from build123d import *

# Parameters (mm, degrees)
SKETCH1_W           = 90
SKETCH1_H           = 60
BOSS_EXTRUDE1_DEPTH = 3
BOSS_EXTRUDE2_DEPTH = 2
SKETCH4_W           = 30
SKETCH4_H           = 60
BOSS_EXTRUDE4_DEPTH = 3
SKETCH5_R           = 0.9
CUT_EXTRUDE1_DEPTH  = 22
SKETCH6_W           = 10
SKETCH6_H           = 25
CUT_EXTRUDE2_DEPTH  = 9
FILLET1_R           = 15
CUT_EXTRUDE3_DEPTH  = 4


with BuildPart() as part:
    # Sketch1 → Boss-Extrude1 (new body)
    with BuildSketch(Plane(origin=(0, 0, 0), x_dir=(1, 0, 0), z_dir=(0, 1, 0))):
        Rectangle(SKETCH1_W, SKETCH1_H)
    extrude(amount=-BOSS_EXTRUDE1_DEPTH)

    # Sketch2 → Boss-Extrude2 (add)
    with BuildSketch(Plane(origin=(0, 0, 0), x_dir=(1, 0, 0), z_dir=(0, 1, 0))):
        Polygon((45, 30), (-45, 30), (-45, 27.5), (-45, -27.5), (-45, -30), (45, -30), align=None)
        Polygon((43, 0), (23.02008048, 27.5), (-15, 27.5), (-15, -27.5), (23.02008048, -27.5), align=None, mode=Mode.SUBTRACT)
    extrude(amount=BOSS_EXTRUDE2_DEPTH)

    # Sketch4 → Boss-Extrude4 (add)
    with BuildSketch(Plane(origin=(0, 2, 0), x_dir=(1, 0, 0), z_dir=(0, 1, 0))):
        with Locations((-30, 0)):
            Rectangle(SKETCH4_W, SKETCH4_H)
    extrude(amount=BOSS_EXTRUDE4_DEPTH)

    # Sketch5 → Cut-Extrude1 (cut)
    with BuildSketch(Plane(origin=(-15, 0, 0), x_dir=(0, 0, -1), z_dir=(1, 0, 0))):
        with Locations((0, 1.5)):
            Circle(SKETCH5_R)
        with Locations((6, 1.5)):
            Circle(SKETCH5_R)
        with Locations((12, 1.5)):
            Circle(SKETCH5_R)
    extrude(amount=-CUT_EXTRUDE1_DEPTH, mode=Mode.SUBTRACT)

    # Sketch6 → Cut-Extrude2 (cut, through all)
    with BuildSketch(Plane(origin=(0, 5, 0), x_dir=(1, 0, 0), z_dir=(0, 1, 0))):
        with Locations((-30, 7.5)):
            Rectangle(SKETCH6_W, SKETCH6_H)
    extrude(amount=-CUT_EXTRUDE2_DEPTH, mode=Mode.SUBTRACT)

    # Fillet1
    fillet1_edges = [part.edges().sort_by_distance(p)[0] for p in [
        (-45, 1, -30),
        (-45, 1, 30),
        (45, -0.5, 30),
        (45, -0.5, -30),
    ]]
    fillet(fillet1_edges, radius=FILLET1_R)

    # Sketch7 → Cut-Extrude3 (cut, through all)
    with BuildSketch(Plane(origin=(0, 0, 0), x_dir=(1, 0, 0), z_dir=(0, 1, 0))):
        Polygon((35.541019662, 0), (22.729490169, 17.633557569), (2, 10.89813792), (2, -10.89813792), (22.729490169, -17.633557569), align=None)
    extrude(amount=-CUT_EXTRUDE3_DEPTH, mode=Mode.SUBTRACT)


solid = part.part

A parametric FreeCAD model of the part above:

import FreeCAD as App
import Part
import Sketcher
Q = App.Units.Quantity


def edges_at(feature, points):
    """Names of the edges that pass closest to the given points."""
    edges = feature.Shape.Edges
    near = lambda p: min(range(len(edges)), key=lambda i: edges[i].distToShape(Part.Vertex(*p))[0])
    return sorted({f"Edge{near(p) + 1}" for p in points})

doc = App.newDocument("Part")
body = doc.addObject("PartDesign::Body", "Body")

# Sketch on XZ plane
sketch1 = doc.addObject("Sketcher::SketchObject", "Sketch")
body.addObject(sketch1)
sketch1.AttachmentSupport = (doc.XZ_Plane, [""])
sketch1.MapMode = "FlatFace"
sketch1.addGeometry(Part.LineSegment(App.Vector(-45, -30, 0), App.Vector(-45, 30, 0)), False)
sketch1.addGeometry(Part.LineSegment(App.Vector(-45, 30, 0), App.Vector(45, 30, 0)), False)
sketch1.addGeometry(Part.LineSegment(App.Vector(45, 30, 0), App.Vector(45, -30, 0)), False)
sketch1.addGeometry(Part.LineSegment(App.Vector(45, -30, 0), App.Vector(-45, -30, 0)), False)
sketch1.addConstraint(Sketcher.Constraint("Coincident", 0, 2, 1, 1))
sketch1.addConstraint(Sketcher.Constraint("Coincident", 1, 2, 2, 1))
sketch1.addConstraint(Sketcher.Constraint("Coincident", 2, 2, 3, 1))
sketch1.addConstraint(Sketcher.Constraint("Coincident", 3, 2, 0, 1))
sketch1.addConstraint(Sketcher.Constraint("Vertical", 0))
sketch1.addConstraint(Sketcher.Constraint("Horizontal", 1))
sketch1.addConstraint(Sketcher.Constraint("Vertical", 2))
sketch1.addConstraint(Sketcher.Constraint("Horizontal", 3))
sketch1.addConstraint(Sketcher.Constraint("Symmetric", 0, 2, 2, 2, -1, 1))
sketch1.addConstraint(Sketcher.Constraint("DistanceX", 1, 1, 1, 2, 90.0))
sketch1.addConstraint(Sketcher.Constraint("DistanceY", 0, 1, 0, 2, 60.0))
pad1 = doc.addObject("PartDesign::Pad", "Pad")
body.addObject(pad1)
pad1.Profile = sketch1
pad1.Length = 3

# Sketch on XZ plane
sketch2 = doc.addObject("Sketcher::SketchObject", "Sketch001")
body.addObject(sketch2)
sketch2.AttachmentSupport = (doc.XZ_Plane, [""])
sketch2.MapMode = "FlatFace"
sketch2.addGeometry(Part.LineSegment(App.Vector(45, -30, 0), App.Vector(-45, -30, 0)), False)
sketch2.addGeometry(Part.LineSegment(App.Vector(-45, -30, 0), App.Vector(-45, 30, 0)), False)
sketch2.addGeometry(Part.LineSegment(App.Vector(-45, 30, 0), App.Vector(45, 30, 0)), False)
sketch2.addGeometry(Part.LineSegment(App.Vector(45, 30, 0), App.Vector(45, -30, 0)), False)
sketch2.addGeometry(Part.LineSegment(App.Vector(23, -28, 0), App.Vector(43, 0, 0)), False)
sketch2.addGeometry(Part.LineSegment(App.Vector(43, 0, 0), App.Vector(23, 28, 0)), False)
sketch2.addGeometry(Part.LineSegment(App.Vector(23, 28, 0), App.Vector(-15, 28, 0)), False)
sketch2.addGeometry(Part.LineSegment(App.Vector(-15, 28, 0), App.Vector(-15, -28, 0)), False)
sketch2.addGeometry(Part.LineSegment(App.Vector(-15, -28, 0), App.Vector(23, -28, 0)), False)
sketch2.addConstraint(Sketcher.Constraint("Coincident", 0, 2, 1, 1))
sketch2.addConstraint(Sketcher.Constraint("Coincident", 1, 2, 2, 1))
sketch2.addConstraint(Sketcher.Constraint("Coincident", 2, 2, 3, 1))
sketch2.addConstraint(Sketcher.Constraint("Coincident", 3, 2, 0, 1))
sketch2.addConstraint(Sketcher.Constraint("Coincident", 4, 2, 5, 1))
sketch2.addConstraint(Sketcher.Constraint("Coincident", 5, 2, 6, 1))
sketch2.addConstraint(Sketcher.Constraint("Coincident", 6, 2, 7, 1))
sketch2.addConstraint(Sketcher.Constraint("Coincident", 7, 2, 8, 1))
sketch2.addConstraint(Sketcher.Constraint("Coincident", 8, 2, 4, 1))
sketch2.addConstraint(Sketcher.Constraint("Horizontal", 0))
sketch2.addConstraint(Sketcher.Constraint("Vertical", 1))
sketch2.addConstraint(Sketcher.Constraint("Horizontal", 2))
sketch2.addConstraint(Sketcher.Constraint("Vertical", 3))
sketch2.addConstraint(Sketcher.Constraint("Horizontal", 6))
sketch2.addConstraint(Sketcher.Constraint("Vertical", 7))
sketch2.addConstraint(Sketcher.Constraint("Horizontal", 8))
sketch2.addConstraint(Sketcher.Constraint("Symmetric", 0, 2, 2, 2, -1, 1))
sketch2.addConstraint(Sketcher.Constraint("Symmetric", 5, 2, 8, 2, -1))
sketch2.addConstraint(Sketcher.Constraint("PointOnObject", 4, 2, -1))
sketch2.addConstraint(Sketcher.Constraint("DistanceX", 0, 2, 0, 1, 90.0))
sketch2.addConstraint(Sketcher.Constraint("DistanceY", 1, 1, 1, 2, 60.0))
sketch2.addConstraint(Sketcher.Constraint("DistanceY", 7, 2, 7, 1, 55.0))
sketch2.addConstraint(Sketcher.Constraint("Angle", 4, Q("54 deg")))
sketch2.addConstraint(Sketcher.Constraint("DistanceX", -1, 1, 4, 2, 43.0))
sketch2.addConstraint(Sketcher.Constraint("DistanceX", 6, 2, -1, 1, 15.0))
pad2 = doc.addObject("PartDesign::Pad", "Pad001")
body.addObject(pad2)
pad2.Profile = sketch2
pad2.Length = 2
pad2.Reversed = True

# Sketch on XZ plane
sketch3 = doc.addObject("Sketcher::SketchObject", "Sketch002")
body.addObject(sketch3)
sketch3.AttachmentSupport = (doc.XZ_Plane, [""])
sketch3.MapMode = "FlatFace"
sketch3.AttachmentOffset = App.Placement(App.Vector(0, 0, -2), App.Rotation())
sketch3.addGeometry(Part.LineSegment(App.Vector(-45, -30, 0), App.Vector(-45, 30, 0)), False)
sketch3.addGeometry(Part.LineSegment(App.Vector(-45, 30, 0), App.Vector(-15, 30, 0)), False)
sketch3.addGeometry(Part.LineSegment(App.Vector(-15, 30, 0), App.Vector(-15, -30, 0)), False)
sketch3.addGeometry(Part.LineSegment(App.Vector(-15, -30, 0), App.Vector(-45, -30, 0)), False)
sketch3.addConstraint(Sketcher.Constraint("Coincident", 0, 2, 1, 1))
sketch3.addConstraint(Sketcher.Constraint("Coincident", 1, 2, 2, 1))
sketch3.addConstraint(Sketcher.Constraint("Coincident", 2, 2, 3, 1))
sketch3.addConstraint(Sketcher.Constraint("Coincident", 3, 2, 0, 1))
sketch3.addConstraint(Sketcher.Constraint("Vertical", 0))
sketch3.addConstraint(Sketcher.Constraint("Horizontal", 1))
sketch3.addConstraint(Sketcher.Constraint("Vertical", 2))
sketch3.addConstraint(Sketcher.Constraint("Horizontal", 3))
sketch3.addConstraint(Sketcher.Constraint("DistanceX", 1, 1, 1, 2, 30.0))
sketch3.addConstraint(Sketcher.Constraint("DistanceY", 0, 1, 0, 2, 60.0))
sketch3.addConstraint(Sketcher.Constraint("DistanceX", 0, 2, -1, 1, 45.0))
sketch3.addConstraint(Sketcher.Constraint("DistanceY", -1, 1, 0, 2, 30.0))
pad3 = doc.addObject("PartDesign::Pad", "Pad002")
body.addObject(pad3)
pad3.Profile = sketch3
pad3.Length = 3
pad3.Reversed = True

# Sketch on YZ plane
sketch4 = doc.addObject("Sketcher::SketchObject", "Sketch003")
body.addObject(sketch4)
sketch4.AttachmentSupport = (doc.YZ_Plane, [""])
sketch4.MapMode = "FlatFace"
sketch4.AttachmentOffset = App.Placement(App.Vector(0, 0, -15), App.Rotation())
sketch4.addGeometry(Part.Circle(App.Vector(1.5, 0, 0), App.Vector(0, 0, 1), 0.9), False)
sketch4.addGeometry(Part.Circle(App.Vector(1.5, -6, 0), App.Vector(0, 0, 1), 0.9), False)
sketch4.addGeometry(Part.Circle(App.Vector(1.5, -12, 0), App.Vector(0, 0, 1), 0.9), False)
sketch4.addConstraint(Sketcher.Constraint("Equal", 0, 1))
sketch4.addConstraint(Sketcher.Constraint("Equal", 1, 2))
sketch4.addConstraint(Sketcher.Constraint("PointOnObject", 0, 3, -1))
sketch4.addConstraint(Sketcher.Constraint("Vertical", 0, 3, 1, 3))
sketch4.addConstraint(Sketcher.Constraint("Vertical", 1, 3, 2, 3))
sketch4.addConstraint(Sketcher.Constraint("Diameter", 0, 1.8))
sketch4.addConstraint(Sketcher.Constraint("DistanceY", 1, 3, -1, 1, 6.0))
sketch4.addConstraint(Sketcher.Constraint("DistanceY", 2, 3, -1, 1, 12.0))
sketch4.addConstraint(Sketcher.Constraint("DistanceX", -1, 1, 0, 3, 1.5))
pocket1 = doc.addObject("PartDesign::Pocket", "Pocket")
body.addObject(pocket1)
pocket1.Profile = sketch4
pocket1.Length = 22

# Sketch on XZ plane
sketch5 = doc.addObject("Sketcher::SketchObject", "Sketch004")
body.addObject(sketch5)
sketch5.AttachmentSupport = (doc.XZ_Plane, [""])
sketch5.MapMode = "FlatFace"
sketch5.AttachmentOffset = App.Placement(App.Vector(0, 0, -5), App.Rotation())
sketch5.addGeometry(Part.LineSegment(App.Vector(-35, -20, 0), App.Vector(-35, 5, 0)), False)
sketch5.addGeometry(Part.LineSegment(App.Vector(-35, 5, 0), App.Vector(-25, 5, 0)), False)
sketch5.addGeometry(Part.LineSegment(App.Vector(-25, 5, 0), App.Vector(-25, -20, 0)), False)
sketch5.addGeometry(Part.LineSegment(App.Vector(-25, -20, 0), App.Vector(-35, -20, 0)), False)
sketch5.addConstraint(Sketcher.Constraint("Coincident", 0, 2, 1, 1))
sketch5.addConstraint(Sketcher.Constraint("Coincident", 1, 2, 2, 1))
sketch5.addConstraint(Sketcher.Constraint("Coincident", 2, 2, 3, 1))
sketch5.addConstraint(Sketcher.Constraint("Coincident", 3, 2, 0, 1))
sketch5.addConstraint(Sketcher.Constraint("Vertical", 0))
sketch5.addConstraint(Sketcher.Constraint("Horizontal", 1))
sketch5.addConstraint(Sketcher.Constraint("Vertical", 2))
sketch5.addConstraint(Sketcher.Constraint("Horizontal", 3))
sketch5.addConstraint(Sketcher.Constraint("DistanceX", 1, 1, 1, 2, 10.0))
sketch5.addConstraint(Sketcher.Constraint("DistanceY", 0, 1, 0, 2, 25.0))
sketch5.addConstraint(Sketcher.Constraint("DistanceX", 0, 2, -1, 1, 35.0))
sketch5.addConstraint(Sketcher.Constraint("DistanceY", -1, 1, 0, 2, 5.0))
pocket2 = doc.addObject("PartDesign::Pocket", "Pocket001")
body.addObject(pocket2)
pocket2.Profile = sketch5
pocket2.Type = "ThroughAll"
pocket2.Reversed = True
doc.recompute()

fillet = doc.addObject("PartDesign::Fillet", "Fillet")
body.addObject(fillet)
fillet.Base = (pocket2, edges_at(pocket2, [
    (-45, 1, -30),
    (-45, 1, 30),
    (45, -0.5, 30),
    (45, -0.5, -30),
]))
fillet.Radius = 15

# Sketch on XZ plane
sketch6 = doc.addObject("Sketcher::SketchObject", "Sketch005")
body.addObject(sketch6)
sketch6.AttachmentSupport = (doc.XZ_Plane, [""])
sketch6.MapMode = "FlatFace"
sketch6.addGeometry(Part.LineSegment(App.Vector(36, 0, 0), App.Vector(23, -18, 0)), False)
sketch6.addGeometry(Part.LineSegment(App.Vector(23, -18, 0), App.Vector(2, -11, 0)), False)
sketch6.addGeometry(Part.LineSegment(App.Vector(2, -11, 0), App.Vector(2, 11, 0)), False)
sketch6.addGeometry(Part.LineSegment(App.Vector(2, 11, 0), App.Vector(23, 18, 0)), False)
sketch6.addGeometry(Part.LineSegment(App.Vector(23, 18, 0), App.Vector(36, 0, 0)), False)
sketch6.addConstraint(Sketcher.Constraint("Coincident", 0, 2, 1, 1))
sketch6.addConstraint(Sketcher.Constraint("Coincident", 1, 2, 2, 1))
sketch6.addConstraint(Sketcher.Constraint("Coincident", 2, 2, 3, 1))
sketch6.addConstraint(Sketcher.Constraint("Coincident", 3, 2, 4, 1))
sketch6.addConstraint(Sketcher.Constraint("Coincident", 4, 2, 0, 1))
sketch6.addConstraint(Sketcher.Constraint("Vertical", 2))
sketch6.addConstraint(Sketcher.Constraint("Symmetric", 0, 2, 3, 2, -1))
sketch6.addConstraint(Sketcher.Constraint("PointOnObject", 4, 2, -1))
sketch6.addConstraint(Sketcher.Constraint("Equal", 0, 1))
sketch6.addConstraint(Sketcher.Constraint("Equal", 1, 3))
sketch6.addConstraint(Sketcher.Constraint("Angle", 0, Q("-126 deg")))
sketch6.addConstraint(Sketcher.Constraint("Angle", 1, Q("162 deg")))
sketch6.addConstraint(Sketcher.Constraint("DistanceX", -1, 1, 1, 2, 2.0))
sketch6.addConstraint(Sketcher.Constraint("DistanceY", 2, 1, 2, 2, 21.796276))
pocket3 = doc.addObject("PartDesign::Pocket", "Pocket002")
body.addObject(pocket3)
pocket3.Profile = sketch6
pocket3.Type = "ThroughAll"
pocket3.Reversed = True

doc.recompute()
